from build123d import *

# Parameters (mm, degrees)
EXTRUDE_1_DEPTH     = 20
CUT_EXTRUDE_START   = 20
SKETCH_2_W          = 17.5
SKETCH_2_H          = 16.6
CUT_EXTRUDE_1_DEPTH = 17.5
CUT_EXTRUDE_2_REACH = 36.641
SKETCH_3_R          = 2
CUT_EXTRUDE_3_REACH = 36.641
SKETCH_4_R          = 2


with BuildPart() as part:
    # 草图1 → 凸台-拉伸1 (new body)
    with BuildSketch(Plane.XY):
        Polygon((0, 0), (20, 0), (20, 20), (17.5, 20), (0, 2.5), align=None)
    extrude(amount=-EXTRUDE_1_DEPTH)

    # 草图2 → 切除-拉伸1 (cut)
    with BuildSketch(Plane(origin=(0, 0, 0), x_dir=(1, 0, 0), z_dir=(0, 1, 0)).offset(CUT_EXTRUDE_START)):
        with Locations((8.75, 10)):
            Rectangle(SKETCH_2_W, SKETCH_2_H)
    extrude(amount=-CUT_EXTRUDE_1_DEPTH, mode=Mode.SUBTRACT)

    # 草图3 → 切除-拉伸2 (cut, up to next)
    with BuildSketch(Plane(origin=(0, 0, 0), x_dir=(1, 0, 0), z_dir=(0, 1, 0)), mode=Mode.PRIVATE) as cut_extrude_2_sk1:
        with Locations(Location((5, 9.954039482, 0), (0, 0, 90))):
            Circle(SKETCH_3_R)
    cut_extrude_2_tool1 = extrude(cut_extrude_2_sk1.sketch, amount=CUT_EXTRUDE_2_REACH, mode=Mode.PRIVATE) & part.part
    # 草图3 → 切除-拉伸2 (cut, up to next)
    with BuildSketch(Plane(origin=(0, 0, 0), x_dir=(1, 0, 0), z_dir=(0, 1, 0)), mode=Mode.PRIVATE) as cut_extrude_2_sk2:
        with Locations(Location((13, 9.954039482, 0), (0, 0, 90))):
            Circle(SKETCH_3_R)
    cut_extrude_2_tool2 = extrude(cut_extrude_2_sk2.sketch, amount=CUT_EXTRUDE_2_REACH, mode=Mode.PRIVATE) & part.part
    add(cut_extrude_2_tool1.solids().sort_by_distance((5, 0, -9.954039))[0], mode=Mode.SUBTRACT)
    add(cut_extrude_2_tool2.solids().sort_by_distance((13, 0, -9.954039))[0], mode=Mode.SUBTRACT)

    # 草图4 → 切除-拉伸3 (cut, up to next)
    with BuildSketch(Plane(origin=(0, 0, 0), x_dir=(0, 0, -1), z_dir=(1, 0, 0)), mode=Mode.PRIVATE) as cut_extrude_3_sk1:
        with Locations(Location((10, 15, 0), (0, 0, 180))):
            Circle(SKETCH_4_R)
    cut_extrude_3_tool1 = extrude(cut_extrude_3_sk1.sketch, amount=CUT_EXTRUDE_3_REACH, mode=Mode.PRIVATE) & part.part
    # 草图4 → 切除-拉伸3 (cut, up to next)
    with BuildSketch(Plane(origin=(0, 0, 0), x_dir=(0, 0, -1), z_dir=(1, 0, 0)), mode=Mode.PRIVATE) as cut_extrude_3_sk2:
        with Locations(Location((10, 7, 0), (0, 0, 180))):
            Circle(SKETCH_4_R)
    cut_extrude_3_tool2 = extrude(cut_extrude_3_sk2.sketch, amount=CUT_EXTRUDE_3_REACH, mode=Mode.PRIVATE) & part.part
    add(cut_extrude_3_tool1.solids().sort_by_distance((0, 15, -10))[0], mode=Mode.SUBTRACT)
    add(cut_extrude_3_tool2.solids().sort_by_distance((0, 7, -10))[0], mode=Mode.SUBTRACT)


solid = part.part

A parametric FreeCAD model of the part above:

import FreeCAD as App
import Part
import Sketcher
from FreeCAD import Vector
Q = App.Units.Quantity

doc = App.newDocument("Part")
body = doc.addObject("PartDesign::Body", "Body")

# Sketch on XY plane
sketch1 = body.newObject("Sketcher::SketchObject", "Sketch")
sketch1.AttachmentSupport = (doc.getObject("XY_Plane"), [""])
sketch1.MapMode = "FlatFace"
sketch1.addGeometry([
    Part.LineSegment(Vector(0, 0, 0), Vector(20, 0, 0)),  # 0
    Part.LineSegment(Vector(20, 0, 0), Vector(20, 20, 0)),  # 1
    Part.LineSegment(Vector(20, 20, 0), Vector(17.5, 20, 0)),  # 2
    Part.LineSegment(Vector(17.5, 20, 0), Vector(0, 2.5, 0)),  # 3
    Part.LineSegment(Vector(0, 2.5, 0), Vector(0, 0, 0)),  # 4
], False)
sketch1.addConstraint([
    Sketcher.Constraint("Coincident", 0, 2, 1, 1),
    Sketcher.Constraint("Coincident", 1, 2, 2, 1),
    Sketcher.Constraint("Coincident", 2, 2, 3, 1),
    Sketcher.Constraint("Coincident", 3, 2, 4, 1),
    Sketcher.Constraint("Coincident", 4, 2, 0, 1),
    Sketcher.Constraint("Horizontal", 0),
    Sketcher.Constraint("Vertical", 1),
    Sketcher.Constraint("Horizontal", 2),
    Sketcher.Constraint("Vertical", 4),
    Sketcher.Constraint("Coincident", 4, 2, -1, 1),
    Sketcher.Constraint("Equal", 0, 1),
    Sketcher.Constraint("Equal", 2, 4),
    Sketcher.Constraint("DistanceX", 0, 1, 0, 2, Q("20 mm")),
    Sketcher.Constraint("DistanceX", 2, 2, 2, 1, Q("2.5 mm")),
])
pad1 = body.newObject("PartDesign::Pad", "Pad")
pad1.Profile = sketch1
pad1.Length = 20
pad1.Reversed = True

# Sketch on XZ plane
sketch2 = body.newObject("Sketcher::SketchObject", "Sketch001")
sketch2.AttachmentSupport = (doc.getObject("XZ_Plane"), [""])
sketch2.MapMode = "FlatFace"
sketch2.AttachmentOffset = App.Placement(Vector(0, 0, -20), App.Rotation())
sketch2.addGeometry([
    Part.LineSegment(Vector(0, -18.3, 0), Vector(0, -1.7, 0)),
    Part.LineSegment(Vector(0, -1.7, 0), Vector(17.5, -1.7, 0)),
    Part.LineSegment(Vector(17.5, -1.7, 0), Vector(17.5, -18.3, 0)),
    Part.LineSegment(Vector(17.5, -18.3, 0), Vector(0, -18.3, 0)),
], False)
sketch2.addConstraint([
    Sketcher.Constraint("Coincident", 0, 2, 1, 1),
    Sketcher.Constraint("Coincident", 1, 2, 2, 1),
    Sketcher.Constraint("Coincident", 2, 2, 3, 1),
    Sketcher.Constraint("Coincident", 3, 2, 0, 1),
    Sketcher.Constraint("Vertical", 0),
    Sketcher.Constraint("Horizontal", 1),
    Sketcher.Constraint("Vertical", 2),
    Sketcher.Constraint("Horizontal", 3),
    Sketcher.Constraint("PointOnObject", 0, 2, -2),
    Sketcher.Constraint("DistanceX", 1, 1, 1, 2, Q("17.5 mm")),
    Sketcher.Constraint("DistanceY", 0, 1, 0, 2, Q("16.6 mm")),
    Sketcher.Constraint("DistanceY", 0, 2, -1, 1, Q("1.7 mm")),
])
pocket1 = body.newObject("PartDesign::Pocket", "Pocket")
pocket1.Profile = sketch2
pocket1.Length = 17.5
pocket1.Reversed = True

# Sketch on XZ plane
sketch3 = body.newObject("Sketcher::SketchObject", "Sketch002")
sketch3.AttachmentSupport = (doc.getObject("XZ_Plane"), [""])
sketch3.MapMode = "FlatFace"
sketch3.addGeometry(Part.Circle(Vector(5, -9.954039, 0), Vector(0, 0, 1), 2), False)
sketch3.addConstraint([
    Sketcher.Constraint("Diameter", 0, Q("4 mm")),
    Sketcher.Constraint("DistanceX", -1, 1, 0, 3, Q("5 mm")),
    Sketcher.Constraint("DistanceY", 0, 3, -1, 1, Q("9.954039 mm")),
])
pocket2 = body.newObject("PartDesign::Pocket", "Pocket001")
pocket2.Profile = sketch3
pocket2.Type = "UpToFirst"

# Sketch on XZ plane
sketch4 = body.newObject("Sketcher::SketchObject", "Sketch003")
sketch4.AttachmentSupport = (doc.getObject("XZ_Plane"), [""])
sketch4.MapMode = "FlatFace"
sketch4.addGeometry(Part.Circle(Vector(13, -9.954039, 0), Vector(0, 0, 1), 2), False)
sketch4.addConstraint([
    Sketcher.Constraint("Diameter", 0, Q("4 mm")),
    Sketcher.Constraint("DistanceX", -1, 1, 0, 3, Q("13 mm")),
    Sketcher.Constraint("DistanceY", 0, 3, -1, 1, Q("9.954039 mm")),
])
pocket3 = body.newObject("PartDesign::Pocket", "Pocket002")
pocket3.Profile = sketch4
pocket3.Type = "UpToFirst"

# Sketch on YZ plane
sketch5 = body.newObject("Sketcher::SketchObject", "Sketch004")
sketch5.AttachmentSupport = (doc.getObject("YZ_Plane"), [""])
sketch5.MapMode = "FlatFace"
sketch5.addGeometry(Part.Circle(Vector(15, -10, 0), Vector(0, 0, 1), 2), False)
sketch5.addConstraint([
    Sketcher.Constraint("Diameter", 0, Q("4 mm")),
    Sketcher.Constraint("DistanceX", -1, 1, 0, 3, Q("15 mm")),
    Sketcher.Constraint("DistanceY", 0, 3, -1, 1, Q("10 mm")),
])
pocket4 = body.newObject("PartDesign::Pocket", "Pocket003")
pocket4.Profile = sketch5
pocket4.Length = 20
pocket4.Reversed = True

# Sketch on YZ plane
sketch6 = body.newObject("Sketcher::SketchObject", "Sketch005")
sketch6.AttachmentSupport = (doc.getObject("YZ_Plane"), [""])
sketch6.MapMode = "FlatFace"
sketch6.addGeometry(Part.Circle(Vector(7, -10, 0), Vector(0, 0, 1), 2), False)
sketch6.addConstraint([
    Sketcher.Constraint("Diameter", 0, Q("4 mm")),
    Sketcher.Constraint("DistanceX", -1, 1, 0, 3, Q("7 mm")),
    Sketcher.Constraint("DistanceY", 0, 3, -1, 1, Q("10 mm")),
])
pocket5 = body.newObject("PartDesign::Pocket", "Pocket004")
pocket5.Profile = sketch6
pocket5.Length = 20
pocket5.Reversed = True

doc.recompute()
